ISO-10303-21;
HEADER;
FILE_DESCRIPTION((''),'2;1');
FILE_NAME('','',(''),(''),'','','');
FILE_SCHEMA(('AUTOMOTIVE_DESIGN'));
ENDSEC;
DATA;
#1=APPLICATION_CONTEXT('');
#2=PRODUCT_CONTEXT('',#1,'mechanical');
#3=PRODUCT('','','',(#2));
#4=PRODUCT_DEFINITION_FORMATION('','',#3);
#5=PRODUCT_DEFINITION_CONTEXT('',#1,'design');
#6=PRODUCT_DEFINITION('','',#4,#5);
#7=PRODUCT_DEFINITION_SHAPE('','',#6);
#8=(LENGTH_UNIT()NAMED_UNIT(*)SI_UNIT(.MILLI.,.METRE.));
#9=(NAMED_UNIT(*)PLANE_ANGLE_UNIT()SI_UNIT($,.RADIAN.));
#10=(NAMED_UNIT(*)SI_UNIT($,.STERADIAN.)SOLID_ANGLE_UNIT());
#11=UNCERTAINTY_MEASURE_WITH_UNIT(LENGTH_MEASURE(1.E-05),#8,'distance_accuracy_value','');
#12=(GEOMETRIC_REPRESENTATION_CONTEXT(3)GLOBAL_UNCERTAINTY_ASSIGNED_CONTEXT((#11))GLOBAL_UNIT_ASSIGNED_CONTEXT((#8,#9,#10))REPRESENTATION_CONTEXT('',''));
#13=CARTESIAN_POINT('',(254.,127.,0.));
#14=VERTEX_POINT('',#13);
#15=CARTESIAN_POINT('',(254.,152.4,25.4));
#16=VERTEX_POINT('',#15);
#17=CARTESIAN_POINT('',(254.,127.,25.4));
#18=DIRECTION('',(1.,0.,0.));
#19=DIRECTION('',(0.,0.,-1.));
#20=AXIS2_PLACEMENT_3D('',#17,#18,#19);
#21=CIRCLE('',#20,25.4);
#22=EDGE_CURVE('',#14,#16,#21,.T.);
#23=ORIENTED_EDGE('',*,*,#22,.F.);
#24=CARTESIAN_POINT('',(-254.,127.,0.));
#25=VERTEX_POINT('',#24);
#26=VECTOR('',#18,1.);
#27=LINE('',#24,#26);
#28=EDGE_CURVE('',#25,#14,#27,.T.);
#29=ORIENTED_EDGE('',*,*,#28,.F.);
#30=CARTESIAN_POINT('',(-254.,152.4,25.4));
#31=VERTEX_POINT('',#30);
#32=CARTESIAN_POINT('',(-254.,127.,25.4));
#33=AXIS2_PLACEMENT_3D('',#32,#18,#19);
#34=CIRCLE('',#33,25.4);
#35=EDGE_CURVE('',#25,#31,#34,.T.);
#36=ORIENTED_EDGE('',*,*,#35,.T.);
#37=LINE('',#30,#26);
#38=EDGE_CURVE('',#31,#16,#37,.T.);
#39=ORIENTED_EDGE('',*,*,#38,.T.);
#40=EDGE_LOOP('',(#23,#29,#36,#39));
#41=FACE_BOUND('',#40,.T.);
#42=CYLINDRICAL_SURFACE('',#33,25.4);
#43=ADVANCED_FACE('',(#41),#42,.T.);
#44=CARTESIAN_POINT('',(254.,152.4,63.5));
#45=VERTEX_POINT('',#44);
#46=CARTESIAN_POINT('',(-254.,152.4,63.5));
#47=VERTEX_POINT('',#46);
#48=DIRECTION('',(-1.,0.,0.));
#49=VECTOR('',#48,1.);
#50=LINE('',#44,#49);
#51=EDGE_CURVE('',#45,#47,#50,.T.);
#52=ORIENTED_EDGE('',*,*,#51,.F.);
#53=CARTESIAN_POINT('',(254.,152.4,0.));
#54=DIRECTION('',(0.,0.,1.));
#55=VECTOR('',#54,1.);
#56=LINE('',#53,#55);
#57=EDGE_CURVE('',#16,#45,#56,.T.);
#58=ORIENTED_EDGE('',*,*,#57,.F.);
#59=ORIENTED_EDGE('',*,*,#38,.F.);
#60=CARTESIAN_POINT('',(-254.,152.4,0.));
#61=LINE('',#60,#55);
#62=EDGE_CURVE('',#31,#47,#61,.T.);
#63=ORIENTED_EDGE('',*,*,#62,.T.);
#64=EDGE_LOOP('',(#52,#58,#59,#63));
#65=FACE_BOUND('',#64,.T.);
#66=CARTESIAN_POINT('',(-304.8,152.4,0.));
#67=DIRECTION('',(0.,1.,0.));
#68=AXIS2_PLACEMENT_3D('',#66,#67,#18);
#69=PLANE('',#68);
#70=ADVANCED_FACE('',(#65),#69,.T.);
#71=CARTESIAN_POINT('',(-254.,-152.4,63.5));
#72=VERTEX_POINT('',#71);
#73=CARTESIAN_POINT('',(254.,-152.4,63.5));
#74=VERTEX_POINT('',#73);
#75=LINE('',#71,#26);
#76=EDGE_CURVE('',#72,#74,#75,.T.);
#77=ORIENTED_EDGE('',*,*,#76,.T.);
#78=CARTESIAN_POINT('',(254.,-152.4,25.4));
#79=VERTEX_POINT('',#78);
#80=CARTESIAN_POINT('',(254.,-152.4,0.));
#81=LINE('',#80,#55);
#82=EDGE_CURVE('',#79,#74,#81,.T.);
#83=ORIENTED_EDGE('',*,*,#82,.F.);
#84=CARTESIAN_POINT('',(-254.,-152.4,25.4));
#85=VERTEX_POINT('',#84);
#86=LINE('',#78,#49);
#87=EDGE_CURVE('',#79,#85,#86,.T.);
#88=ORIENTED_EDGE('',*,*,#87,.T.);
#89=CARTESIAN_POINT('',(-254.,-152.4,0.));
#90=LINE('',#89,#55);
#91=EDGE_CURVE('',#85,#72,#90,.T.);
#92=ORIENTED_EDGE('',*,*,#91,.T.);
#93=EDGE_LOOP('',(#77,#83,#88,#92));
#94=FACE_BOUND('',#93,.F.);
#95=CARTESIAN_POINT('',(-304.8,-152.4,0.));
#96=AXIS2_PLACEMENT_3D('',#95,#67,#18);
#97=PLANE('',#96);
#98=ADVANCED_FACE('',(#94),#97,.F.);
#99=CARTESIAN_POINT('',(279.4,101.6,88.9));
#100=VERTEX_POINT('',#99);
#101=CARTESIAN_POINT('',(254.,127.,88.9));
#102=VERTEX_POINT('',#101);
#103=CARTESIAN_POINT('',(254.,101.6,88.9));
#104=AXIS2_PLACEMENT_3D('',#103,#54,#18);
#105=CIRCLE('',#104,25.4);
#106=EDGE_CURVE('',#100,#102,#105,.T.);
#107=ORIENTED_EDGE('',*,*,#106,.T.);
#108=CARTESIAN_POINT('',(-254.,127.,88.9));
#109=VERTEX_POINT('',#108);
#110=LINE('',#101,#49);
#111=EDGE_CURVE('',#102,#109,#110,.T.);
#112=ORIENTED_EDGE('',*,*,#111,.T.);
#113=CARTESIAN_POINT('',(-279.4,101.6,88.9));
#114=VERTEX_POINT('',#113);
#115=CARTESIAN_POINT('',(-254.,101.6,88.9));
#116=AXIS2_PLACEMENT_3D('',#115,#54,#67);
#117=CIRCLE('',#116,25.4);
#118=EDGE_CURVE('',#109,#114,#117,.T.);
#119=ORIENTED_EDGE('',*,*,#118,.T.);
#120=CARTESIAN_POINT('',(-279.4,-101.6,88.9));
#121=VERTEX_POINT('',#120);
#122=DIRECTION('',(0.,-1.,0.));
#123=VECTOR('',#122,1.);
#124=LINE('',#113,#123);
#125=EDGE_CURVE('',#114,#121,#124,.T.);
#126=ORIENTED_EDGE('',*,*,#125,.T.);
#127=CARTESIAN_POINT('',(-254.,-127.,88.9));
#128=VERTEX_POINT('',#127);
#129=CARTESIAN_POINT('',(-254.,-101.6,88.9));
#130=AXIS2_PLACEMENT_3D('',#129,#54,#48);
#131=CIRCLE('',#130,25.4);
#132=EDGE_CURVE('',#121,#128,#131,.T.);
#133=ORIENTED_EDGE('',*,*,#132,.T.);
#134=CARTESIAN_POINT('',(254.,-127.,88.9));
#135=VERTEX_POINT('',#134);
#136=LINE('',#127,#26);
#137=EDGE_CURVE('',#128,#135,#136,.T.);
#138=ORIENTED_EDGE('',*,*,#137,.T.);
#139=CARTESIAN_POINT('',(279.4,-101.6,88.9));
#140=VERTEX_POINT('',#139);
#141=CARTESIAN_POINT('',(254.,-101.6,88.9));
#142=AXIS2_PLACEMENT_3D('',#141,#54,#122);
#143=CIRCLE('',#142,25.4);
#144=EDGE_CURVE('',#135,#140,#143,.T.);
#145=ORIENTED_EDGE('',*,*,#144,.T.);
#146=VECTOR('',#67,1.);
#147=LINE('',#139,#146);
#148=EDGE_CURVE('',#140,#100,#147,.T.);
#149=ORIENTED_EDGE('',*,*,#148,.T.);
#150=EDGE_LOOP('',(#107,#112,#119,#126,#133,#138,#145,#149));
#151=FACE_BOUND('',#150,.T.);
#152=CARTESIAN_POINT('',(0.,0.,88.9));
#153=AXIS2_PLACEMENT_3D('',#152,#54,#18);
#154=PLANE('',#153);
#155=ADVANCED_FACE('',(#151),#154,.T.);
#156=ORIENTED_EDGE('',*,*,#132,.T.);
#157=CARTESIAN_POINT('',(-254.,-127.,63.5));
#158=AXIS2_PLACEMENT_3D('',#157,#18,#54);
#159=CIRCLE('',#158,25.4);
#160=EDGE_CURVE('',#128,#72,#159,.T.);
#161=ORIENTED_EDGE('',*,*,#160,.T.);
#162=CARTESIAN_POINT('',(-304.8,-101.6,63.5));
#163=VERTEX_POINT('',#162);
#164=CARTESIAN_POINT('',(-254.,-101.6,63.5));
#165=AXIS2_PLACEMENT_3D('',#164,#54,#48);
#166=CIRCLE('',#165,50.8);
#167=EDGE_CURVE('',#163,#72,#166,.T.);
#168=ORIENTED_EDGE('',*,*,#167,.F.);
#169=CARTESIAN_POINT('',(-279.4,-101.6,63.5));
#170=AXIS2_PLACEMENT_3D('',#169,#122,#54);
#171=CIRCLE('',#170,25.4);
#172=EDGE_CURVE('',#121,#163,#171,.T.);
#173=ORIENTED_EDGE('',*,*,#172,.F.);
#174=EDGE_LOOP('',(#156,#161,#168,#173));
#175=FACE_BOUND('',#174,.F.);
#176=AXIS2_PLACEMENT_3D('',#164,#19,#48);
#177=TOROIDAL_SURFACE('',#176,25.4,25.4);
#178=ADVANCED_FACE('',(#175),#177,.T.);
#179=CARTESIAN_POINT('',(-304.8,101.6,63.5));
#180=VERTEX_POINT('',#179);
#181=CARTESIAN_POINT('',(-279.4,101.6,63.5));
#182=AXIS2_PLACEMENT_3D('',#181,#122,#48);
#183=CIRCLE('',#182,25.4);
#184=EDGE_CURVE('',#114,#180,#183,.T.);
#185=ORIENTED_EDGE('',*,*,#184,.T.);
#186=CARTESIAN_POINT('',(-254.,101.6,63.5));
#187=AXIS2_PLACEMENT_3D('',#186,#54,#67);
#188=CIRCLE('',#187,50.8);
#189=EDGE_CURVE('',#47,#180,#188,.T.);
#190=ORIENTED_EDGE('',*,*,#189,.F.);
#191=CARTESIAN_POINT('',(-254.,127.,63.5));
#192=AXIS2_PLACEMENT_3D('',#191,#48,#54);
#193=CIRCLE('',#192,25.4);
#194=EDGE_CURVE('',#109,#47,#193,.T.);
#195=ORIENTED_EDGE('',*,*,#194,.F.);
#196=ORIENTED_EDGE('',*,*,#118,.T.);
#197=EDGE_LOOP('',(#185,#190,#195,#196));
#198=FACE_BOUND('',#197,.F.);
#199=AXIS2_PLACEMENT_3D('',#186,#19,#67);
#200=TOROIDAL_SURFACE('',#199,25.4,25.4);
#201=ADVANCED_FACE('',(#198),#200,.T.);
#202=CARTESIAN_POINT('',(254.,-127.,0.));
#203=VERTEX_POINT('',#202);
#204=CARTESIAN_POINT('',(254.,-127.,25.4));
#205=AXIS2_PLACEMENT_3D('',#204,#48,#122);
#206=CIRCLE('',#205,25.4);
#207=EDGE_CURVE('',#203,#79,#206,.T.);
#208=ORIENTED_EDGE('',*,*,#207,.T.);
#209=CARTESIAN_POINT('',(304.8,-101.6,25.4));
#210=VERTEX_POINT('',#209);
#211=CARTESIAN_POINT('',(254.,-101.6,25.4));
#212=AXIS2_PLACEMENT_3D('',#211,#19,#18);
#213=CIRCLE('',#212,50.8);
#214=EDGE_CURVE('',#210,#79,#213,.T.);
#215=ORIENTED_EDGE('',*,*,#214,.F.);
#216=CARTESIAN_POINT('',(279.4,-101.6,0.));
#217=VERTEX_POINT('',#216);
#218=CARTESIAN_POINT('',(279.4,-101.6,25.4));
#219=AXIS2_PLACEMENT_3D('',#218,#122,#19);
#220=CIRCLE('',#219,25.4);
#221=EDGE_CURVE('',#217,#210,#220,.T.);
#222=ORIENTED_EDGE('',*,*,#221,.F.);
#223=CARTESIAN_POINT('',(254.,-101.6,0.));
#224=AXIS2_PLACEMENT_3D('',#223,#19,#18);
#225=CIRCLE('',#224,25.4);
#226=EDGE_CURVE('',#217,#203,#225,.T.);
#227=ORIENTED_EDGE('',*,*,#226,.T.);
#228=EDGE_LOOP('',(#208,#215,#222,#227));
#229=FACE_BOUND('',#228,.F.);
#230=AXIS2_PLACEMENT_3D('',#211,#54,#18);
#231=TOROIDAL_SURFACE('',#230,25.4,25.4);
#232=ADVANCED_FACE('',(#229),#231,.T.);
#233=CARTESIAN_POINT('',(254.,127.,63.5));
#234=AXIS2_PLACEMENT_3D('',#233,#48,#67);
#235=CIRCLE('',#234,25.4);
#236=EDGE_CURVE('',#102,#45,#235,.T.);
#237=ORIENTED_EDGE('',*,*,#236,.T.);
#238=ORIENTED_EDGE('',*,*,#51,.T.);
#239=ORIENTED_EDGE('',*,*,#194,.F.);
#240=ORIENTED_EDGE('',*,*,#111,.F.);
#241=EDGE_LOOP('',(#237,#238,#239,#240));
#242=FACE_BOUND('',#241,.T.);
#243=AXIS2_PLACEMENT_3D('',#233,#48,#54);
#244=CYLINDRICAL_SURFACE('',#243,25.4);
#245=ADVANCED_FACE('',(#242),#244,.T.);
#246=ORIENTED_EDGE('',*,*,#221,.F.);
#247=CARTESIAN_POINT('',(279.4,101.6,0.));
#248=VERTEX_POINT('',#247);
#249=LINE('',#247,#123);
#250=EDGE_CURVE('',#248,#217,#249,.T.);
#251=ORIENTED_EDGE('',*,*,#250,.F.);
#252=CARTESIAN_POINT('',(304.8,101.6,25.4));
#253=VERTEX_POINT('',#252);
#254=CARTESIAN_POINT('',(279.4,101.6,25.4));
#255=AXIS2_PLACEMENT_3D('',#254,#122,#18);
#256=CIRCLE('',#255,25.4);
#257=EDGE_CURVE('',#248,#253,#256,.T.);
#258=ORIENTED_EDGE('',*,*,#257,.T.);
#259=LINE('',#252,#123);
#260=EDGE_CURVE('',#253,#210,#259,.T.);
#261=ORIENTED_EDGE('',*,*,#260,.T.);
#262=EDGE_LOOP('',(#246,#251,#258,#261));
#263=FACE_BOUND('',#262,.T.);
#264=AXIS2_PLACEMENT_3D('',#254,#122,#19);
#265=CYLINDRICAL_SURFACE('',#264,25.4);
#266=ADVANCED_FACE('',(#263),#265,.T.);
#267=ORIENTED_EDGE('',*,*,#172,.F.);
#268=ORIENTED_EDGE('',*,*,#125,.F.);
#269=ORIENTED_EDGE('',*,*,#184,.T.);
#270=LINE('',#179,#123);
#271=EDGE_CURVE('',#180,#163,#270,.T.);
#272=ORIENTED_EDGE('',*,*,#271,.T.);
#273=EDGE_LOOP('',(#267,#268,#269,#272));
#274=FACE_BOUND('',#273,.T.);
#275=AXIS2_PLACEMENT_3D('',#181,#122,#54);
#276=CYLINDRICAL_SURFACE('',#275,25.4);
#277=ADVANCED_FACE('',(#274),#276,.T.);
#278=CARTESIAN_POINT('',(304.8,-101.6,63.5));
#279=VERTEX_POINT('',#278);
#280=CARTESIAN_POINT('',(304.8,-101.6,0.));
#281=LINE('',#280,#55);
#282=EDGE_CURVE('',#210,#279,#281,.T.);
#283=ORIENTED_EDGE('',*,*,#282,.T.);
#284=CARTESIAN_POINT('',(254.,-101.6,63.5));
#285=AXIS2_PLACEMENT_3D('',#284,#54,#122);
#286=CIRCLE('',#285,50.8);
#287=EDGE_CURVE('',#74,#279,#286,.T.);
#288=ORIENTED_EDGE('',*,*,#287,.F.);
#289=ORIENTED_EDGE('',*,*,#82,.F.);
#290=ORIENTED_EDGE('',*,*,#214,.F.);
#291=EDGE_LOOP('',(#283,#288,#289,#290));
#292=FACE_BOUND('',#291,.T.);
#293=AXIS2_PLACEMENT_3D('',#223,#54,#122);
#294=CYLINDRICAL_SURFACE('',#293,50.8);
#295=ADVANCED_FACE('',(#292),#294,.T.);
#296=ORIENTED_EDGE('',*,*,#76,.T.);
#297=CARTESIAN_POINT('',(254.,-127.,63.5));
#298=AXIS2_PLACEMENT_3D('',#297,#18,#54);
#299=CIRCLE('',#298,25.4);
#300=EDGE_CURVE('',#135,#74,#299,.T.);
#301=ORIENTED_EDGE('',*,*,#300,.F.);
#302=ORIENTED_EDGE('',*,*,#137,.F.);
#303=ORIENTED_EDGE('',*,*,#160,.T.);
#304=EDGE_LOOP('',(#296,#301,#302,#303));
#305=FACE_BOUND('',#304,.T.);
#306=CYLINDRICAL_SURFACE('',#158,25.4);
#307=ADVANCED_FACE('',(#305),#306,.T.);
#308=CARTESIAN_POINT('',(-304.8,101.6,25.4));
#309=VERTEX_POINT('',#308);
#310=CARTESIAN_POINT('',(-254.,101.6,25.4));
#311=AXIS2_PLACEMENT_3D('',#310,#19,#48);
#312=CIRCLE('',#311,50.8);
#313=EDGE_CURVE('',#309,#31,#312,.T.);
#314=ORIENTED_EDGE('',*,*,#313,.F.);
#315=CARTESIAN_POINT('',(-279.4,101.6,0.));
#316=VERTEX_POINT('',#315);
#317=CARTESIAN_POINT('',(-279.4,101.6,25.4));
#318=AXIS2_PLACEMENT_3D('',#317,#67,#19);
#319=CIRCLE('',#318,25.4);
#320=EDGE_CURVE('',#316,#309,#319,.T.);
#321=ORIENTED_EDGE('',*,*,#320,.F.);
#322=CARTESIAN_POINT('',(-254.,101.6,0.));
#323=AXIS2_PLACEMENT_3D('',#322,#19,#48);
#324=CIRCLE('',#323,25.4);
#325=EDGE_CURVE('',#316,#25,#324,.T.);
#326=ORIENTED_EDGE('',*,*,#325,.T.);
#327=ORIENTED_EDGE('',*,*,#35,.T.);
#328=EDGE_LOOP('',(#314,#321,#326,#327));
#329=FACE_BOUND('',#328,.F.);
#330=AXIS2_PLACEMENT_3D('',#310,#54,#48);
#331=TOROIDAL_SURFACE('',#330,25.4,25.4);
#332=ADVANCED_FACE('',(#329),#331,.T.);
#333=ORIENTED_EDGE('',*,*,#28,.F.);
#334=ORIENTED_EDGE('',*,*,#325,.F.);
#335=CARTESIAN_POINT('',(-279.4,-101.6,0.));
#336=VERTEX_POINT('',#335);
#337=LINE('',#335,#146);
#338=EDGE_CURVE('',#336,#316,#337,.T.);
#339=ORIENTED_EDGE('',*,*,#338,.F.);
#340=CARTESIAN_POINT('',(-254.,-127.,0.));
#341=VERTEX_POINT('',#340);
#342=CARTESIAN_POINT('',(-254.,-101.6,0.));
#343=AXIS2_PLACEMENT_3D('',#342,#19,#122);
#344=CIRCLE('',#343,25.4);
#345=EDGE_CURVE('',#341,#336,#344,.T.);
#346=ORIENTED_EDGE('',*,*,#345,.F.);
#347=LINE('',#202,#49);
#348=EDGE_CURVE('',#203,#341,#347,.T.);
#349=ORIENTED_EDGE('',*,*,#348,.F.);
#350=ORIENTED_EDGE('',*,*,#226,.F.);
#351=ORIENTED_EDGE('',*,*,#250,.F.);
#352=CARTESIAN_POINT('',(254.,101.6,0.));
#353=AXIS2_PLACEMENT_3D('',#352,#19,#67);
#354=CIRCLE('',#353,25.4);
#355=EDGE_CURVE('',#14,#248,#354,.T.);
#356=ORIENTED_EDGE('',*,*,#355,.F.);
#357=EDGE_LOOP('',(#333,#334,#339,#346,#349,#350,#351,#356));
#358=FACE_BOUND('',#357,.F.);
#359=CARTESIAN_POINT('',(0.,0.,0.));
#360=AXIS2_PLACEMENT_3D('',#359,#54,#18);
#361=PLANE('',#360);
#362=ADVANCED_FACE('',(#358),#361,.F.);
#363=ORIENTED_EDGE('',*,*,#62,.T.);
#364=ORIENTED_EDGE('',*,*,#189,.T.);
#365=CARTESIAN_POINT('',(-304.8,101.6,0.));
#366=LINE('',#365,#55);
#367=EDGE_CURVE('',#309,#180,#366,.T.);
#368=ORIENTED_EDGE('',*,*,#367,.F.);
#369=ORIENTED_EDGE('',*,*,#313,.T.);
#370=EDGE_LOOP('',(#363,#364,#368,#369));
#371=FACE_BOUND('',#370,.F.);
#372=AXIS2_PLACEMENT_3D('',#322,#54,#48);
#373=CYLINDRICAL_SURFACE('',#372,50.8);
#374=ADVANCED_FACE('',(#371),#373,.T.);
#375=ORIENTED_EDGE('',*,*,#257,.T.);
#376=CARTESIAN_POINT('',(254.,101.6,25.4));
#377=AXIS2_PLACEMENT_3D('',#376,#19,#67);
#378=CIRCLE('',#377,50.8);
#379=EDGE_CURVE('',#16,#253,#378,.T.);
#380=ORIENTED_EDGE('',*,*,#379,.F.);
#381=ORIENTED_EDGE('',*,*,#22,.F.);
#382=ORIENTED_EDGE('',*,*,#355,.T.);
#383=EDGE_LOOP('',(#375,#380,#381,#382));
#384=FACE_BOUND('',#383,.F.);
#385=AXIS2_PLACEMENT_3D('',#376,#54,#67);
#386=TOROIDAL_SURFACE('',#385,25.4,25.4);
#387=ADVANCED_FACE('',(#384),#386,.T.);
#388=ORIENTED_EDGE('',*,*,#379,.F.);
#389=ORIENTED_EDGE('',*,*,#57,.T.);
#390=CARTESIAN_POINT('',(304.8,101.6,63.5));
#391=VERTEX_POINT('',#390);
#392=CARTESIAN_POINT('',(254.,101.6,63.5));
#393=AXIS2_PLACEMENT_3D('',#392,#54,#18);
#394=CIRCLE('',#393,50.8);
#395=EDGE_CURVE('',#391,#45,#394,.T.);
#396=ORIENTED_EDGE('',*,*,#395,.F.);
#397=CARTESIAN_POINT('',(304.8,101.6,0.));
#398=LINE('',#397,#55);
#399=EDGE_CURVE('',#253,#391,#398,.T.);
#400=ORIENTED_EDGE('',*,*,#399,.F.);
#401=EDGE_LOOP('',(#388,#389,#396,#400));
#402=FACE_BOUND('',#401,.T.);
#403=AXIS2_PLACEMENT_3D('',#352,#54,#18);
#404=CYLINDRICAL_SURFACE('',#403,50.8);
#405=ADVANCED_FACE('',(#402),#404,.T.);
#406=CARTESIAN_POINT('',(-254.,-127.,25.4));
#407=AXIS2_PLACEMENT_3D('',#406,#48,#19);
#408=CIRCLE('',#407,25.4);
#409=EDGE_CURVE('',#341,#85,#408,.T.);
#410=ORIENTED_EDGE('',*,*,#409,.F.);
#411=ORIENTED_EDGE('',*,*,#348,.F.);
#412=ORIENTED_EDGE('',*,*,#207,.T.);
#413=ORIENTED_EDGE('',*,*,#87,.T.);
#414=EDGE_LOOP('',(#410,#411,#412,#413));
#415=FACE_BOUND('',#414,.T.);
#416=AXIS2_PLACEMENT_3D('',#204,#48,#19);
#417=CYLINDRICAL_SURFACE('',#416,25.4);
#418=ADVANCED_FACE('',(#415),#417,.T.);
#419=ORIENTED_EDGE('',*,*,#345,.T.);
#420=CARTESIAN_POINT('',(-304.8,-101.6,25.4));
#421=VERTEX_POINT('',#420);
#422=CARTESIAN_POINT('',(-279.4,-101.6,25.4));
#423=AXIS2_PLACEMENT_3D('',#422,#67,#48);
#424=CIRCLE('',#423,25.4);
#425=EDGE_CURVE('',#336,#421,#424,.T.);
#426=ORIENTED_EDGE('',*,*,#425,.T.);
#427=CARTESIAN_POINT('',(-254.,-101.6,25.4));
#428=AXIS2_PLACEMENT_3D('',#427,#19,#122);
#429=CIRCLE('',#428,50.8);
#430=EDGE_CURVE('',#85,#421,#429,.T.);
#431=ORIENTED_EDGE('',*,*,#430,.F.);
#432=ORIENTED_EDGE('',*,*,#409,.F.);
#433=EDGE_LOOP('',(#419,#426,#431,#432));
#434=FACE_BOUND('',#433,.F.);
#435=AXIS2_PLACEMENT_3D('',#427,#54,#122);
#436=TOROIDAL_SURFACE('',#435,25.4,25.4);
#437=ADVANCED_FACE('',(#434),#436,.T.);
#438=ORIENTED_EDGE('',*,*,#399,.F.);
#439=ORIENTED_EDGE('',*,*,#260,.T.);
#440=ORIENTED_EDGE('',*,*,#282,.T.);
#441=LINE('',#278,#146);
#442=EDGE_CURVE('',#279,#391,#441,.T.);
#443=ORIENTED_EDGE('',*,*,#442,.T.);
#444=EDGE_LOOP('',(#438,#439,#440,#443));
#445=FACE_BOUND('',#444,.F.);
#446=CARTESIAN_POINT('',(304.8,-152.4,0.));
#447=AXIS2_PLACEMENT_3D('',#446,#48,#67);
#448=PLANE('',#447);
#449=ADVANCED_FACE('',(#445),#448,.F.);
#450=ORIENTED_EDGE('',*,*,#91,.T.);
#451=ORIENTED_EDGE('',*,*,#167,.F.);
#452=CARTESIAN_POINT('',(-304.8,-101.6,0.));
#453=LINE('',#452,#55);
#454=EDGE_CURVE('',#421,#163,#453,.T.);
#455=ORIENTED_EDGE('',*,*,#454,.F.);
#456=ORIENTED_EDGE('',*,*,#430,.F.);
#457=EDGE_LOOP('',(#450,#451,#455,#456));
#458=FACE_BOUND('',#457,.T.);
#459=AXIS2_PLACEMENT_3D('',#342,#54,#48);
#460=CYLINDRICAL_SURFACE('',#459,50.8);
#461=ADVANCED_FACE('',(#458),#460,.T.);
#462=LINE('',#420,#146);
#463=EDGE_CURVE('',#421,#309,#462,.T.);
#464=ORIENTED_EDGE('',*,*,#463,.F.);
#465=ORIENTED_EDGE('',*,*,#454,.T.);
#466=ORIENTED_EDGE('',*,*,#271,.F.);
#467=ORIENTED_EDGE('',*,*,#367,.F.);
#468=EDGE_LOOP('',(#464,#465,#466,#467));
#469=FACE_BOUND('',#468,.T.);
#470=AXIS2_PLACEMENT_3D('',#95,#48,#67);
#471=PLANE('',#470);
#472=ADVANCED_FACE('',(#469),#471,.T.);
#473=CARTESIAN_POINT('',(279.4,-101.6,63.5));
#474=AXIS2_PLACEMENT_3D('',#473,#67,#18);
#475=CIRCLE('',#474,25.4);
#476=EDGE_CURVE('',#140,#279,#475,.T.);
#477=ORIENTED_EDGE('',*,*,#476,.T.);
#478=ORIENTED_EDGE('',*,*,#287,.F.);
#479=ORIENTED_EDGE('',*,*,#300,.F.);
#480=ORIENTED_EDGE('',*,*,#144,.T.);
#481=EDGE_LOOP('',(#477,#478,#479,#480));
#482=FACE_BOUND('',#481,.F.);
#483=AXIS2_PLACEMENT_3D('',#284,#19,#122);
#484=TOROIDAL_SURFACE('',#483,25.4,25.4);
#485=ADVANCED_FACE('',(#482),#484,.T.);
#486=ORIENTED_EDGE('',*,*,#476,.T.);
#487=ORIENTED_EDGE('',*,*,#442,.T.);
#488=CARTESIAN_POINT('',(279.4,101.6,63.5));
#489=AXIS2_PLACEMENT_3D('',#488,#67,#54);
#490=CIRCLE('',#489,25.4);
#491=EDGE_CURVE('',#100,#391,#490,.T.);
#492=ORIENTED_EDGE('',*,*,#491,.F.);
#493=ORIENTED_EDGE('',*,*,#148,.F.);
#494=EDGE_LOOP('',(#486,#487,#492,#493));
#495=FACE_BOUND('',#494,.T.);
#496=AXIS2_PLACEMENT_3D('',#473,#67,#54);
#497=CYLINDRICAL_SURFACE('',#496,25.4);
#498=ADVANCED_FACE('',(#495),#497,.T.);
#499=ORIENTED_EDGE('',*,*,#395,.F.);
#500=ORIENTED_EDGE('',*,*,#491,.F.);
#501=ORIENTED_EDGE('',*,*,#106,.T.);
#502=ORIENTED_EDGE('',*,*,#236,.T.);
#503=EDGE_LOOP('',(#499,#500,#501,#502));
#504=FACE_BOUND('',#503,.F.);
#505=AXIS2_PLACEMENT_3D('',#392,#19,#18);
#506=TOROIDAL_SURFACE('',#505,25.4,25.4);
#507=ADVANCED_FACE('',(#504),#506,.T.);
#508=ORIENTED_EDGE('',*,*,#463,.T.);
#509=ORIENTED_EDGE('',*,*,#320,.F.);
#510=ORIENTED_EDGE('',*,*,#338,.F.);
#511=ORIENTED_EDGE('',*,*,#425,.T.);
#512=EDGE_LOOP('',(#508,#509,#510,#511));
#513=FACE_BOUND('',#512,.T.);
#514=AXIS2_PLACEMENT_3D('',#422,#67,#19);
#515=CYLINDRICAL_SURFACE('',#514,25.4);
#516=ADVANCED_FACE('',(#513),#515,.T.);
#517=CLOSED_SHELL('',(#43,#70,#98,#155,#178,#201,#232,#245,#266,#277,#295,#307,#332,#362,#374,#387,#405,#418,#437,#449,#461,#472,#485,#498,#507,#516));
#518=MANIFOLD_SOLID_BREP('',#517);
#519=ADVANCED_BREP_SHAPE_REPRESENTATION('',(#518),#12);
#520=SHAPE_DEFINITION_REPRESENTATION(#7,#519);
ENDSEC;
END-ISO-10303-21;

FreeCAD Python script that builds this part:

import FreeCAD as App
import Part
import Sketcher

V = App.Vector
Q = App.Units.Quantity


def edges_at(feature, points):
    """Names of the edges that pass closest to the given points."""
    edges = feature.Shape.Edges
    near = lambda p: min(range(len(edges)), key=lambda i: edges[i].distToShape(Part.Vertex(*p))[0])
    return sorted({f"Edge{near(p) + 1}" for p in points})


def add_polygon(sketch, points):
    """Adds a closed chain of lines whose ends are joined by coincident constraints."""
    first, n = sketch.GeometryCount, len(points)
    for a, b in zip(points, points[1:] + points[:1]):
        sketch.addGeometry(Part.LineSegment(App.Vector(*a, 0), App.Vector(*b, 0)), False)
    for i in range(n):
        sketch.addConstraint(Sketcher.Constraint("Coincident", first + i, 2, first + (i + 1) % n, 1))

doc = App.newDocument("Part")
body = doc.addObject("PartDesign::Body", "Body")

# Sketch on XY plane
sketch1 = body.newObject("Sketcher::SketchObject", "Sketch")
sketch1.AttachmentSupport = (doc.getObject("XY_Plane"), [""])
sketch1.MapMode = "FlatFace"
add_polygon(sketch1, [(-305, 152), (-305, -152), (305, -152), (305, 152)])  # lines 0-3
sketch1.addConstraint([
    Sketcher.Constraint("Vertical", 0),
    Sketcher.Constraint("Horizontal", 1),
    Sketcher.Constraint("Vertical", 2),
    Sketcher.Constraint("Horizontal", 3),
    Sketcher.Constraint("Symmetric", 0, 2, 2, 2, -1, 1),
    Sketcher.Constraint("DistanceX", 1, 1, 1, 2, Q("24 in")),
    Sketcher.Constraint("DistanceY", 0, 2, 0, 1, Q("12 in")),
])
pad1 = body.newObject("PartDesign::Pad", "Pad")
pad1.Profile = sketch1
pad1.Length = Q("3.5 in")
doc.recompute()

fillet = body.newObject("PartDesign::Fillet", "Fillet")
fillet.Base = (pad1, edges_at(pad1, [
    (-304.8, 152.4, 44.45),
    (-304.8, -152.4, 44.45),
    (304.8, -152.4, 44.45),
    (304.8, 152.4, 44.45),
]))
fillet.Radius = Q("2 in")
doc.recompute()

fillet2 = body.newObject("PartDesign::Fillet", "Fillet001")
fillet2.Base = (fillet, edges_at(fillet, [(0, -152.4, 88.9), (0, 152.4, 88.9), (0, 152.4, 0)]))
fillet2.Radius = Q("1 in")

doc.recompute()
